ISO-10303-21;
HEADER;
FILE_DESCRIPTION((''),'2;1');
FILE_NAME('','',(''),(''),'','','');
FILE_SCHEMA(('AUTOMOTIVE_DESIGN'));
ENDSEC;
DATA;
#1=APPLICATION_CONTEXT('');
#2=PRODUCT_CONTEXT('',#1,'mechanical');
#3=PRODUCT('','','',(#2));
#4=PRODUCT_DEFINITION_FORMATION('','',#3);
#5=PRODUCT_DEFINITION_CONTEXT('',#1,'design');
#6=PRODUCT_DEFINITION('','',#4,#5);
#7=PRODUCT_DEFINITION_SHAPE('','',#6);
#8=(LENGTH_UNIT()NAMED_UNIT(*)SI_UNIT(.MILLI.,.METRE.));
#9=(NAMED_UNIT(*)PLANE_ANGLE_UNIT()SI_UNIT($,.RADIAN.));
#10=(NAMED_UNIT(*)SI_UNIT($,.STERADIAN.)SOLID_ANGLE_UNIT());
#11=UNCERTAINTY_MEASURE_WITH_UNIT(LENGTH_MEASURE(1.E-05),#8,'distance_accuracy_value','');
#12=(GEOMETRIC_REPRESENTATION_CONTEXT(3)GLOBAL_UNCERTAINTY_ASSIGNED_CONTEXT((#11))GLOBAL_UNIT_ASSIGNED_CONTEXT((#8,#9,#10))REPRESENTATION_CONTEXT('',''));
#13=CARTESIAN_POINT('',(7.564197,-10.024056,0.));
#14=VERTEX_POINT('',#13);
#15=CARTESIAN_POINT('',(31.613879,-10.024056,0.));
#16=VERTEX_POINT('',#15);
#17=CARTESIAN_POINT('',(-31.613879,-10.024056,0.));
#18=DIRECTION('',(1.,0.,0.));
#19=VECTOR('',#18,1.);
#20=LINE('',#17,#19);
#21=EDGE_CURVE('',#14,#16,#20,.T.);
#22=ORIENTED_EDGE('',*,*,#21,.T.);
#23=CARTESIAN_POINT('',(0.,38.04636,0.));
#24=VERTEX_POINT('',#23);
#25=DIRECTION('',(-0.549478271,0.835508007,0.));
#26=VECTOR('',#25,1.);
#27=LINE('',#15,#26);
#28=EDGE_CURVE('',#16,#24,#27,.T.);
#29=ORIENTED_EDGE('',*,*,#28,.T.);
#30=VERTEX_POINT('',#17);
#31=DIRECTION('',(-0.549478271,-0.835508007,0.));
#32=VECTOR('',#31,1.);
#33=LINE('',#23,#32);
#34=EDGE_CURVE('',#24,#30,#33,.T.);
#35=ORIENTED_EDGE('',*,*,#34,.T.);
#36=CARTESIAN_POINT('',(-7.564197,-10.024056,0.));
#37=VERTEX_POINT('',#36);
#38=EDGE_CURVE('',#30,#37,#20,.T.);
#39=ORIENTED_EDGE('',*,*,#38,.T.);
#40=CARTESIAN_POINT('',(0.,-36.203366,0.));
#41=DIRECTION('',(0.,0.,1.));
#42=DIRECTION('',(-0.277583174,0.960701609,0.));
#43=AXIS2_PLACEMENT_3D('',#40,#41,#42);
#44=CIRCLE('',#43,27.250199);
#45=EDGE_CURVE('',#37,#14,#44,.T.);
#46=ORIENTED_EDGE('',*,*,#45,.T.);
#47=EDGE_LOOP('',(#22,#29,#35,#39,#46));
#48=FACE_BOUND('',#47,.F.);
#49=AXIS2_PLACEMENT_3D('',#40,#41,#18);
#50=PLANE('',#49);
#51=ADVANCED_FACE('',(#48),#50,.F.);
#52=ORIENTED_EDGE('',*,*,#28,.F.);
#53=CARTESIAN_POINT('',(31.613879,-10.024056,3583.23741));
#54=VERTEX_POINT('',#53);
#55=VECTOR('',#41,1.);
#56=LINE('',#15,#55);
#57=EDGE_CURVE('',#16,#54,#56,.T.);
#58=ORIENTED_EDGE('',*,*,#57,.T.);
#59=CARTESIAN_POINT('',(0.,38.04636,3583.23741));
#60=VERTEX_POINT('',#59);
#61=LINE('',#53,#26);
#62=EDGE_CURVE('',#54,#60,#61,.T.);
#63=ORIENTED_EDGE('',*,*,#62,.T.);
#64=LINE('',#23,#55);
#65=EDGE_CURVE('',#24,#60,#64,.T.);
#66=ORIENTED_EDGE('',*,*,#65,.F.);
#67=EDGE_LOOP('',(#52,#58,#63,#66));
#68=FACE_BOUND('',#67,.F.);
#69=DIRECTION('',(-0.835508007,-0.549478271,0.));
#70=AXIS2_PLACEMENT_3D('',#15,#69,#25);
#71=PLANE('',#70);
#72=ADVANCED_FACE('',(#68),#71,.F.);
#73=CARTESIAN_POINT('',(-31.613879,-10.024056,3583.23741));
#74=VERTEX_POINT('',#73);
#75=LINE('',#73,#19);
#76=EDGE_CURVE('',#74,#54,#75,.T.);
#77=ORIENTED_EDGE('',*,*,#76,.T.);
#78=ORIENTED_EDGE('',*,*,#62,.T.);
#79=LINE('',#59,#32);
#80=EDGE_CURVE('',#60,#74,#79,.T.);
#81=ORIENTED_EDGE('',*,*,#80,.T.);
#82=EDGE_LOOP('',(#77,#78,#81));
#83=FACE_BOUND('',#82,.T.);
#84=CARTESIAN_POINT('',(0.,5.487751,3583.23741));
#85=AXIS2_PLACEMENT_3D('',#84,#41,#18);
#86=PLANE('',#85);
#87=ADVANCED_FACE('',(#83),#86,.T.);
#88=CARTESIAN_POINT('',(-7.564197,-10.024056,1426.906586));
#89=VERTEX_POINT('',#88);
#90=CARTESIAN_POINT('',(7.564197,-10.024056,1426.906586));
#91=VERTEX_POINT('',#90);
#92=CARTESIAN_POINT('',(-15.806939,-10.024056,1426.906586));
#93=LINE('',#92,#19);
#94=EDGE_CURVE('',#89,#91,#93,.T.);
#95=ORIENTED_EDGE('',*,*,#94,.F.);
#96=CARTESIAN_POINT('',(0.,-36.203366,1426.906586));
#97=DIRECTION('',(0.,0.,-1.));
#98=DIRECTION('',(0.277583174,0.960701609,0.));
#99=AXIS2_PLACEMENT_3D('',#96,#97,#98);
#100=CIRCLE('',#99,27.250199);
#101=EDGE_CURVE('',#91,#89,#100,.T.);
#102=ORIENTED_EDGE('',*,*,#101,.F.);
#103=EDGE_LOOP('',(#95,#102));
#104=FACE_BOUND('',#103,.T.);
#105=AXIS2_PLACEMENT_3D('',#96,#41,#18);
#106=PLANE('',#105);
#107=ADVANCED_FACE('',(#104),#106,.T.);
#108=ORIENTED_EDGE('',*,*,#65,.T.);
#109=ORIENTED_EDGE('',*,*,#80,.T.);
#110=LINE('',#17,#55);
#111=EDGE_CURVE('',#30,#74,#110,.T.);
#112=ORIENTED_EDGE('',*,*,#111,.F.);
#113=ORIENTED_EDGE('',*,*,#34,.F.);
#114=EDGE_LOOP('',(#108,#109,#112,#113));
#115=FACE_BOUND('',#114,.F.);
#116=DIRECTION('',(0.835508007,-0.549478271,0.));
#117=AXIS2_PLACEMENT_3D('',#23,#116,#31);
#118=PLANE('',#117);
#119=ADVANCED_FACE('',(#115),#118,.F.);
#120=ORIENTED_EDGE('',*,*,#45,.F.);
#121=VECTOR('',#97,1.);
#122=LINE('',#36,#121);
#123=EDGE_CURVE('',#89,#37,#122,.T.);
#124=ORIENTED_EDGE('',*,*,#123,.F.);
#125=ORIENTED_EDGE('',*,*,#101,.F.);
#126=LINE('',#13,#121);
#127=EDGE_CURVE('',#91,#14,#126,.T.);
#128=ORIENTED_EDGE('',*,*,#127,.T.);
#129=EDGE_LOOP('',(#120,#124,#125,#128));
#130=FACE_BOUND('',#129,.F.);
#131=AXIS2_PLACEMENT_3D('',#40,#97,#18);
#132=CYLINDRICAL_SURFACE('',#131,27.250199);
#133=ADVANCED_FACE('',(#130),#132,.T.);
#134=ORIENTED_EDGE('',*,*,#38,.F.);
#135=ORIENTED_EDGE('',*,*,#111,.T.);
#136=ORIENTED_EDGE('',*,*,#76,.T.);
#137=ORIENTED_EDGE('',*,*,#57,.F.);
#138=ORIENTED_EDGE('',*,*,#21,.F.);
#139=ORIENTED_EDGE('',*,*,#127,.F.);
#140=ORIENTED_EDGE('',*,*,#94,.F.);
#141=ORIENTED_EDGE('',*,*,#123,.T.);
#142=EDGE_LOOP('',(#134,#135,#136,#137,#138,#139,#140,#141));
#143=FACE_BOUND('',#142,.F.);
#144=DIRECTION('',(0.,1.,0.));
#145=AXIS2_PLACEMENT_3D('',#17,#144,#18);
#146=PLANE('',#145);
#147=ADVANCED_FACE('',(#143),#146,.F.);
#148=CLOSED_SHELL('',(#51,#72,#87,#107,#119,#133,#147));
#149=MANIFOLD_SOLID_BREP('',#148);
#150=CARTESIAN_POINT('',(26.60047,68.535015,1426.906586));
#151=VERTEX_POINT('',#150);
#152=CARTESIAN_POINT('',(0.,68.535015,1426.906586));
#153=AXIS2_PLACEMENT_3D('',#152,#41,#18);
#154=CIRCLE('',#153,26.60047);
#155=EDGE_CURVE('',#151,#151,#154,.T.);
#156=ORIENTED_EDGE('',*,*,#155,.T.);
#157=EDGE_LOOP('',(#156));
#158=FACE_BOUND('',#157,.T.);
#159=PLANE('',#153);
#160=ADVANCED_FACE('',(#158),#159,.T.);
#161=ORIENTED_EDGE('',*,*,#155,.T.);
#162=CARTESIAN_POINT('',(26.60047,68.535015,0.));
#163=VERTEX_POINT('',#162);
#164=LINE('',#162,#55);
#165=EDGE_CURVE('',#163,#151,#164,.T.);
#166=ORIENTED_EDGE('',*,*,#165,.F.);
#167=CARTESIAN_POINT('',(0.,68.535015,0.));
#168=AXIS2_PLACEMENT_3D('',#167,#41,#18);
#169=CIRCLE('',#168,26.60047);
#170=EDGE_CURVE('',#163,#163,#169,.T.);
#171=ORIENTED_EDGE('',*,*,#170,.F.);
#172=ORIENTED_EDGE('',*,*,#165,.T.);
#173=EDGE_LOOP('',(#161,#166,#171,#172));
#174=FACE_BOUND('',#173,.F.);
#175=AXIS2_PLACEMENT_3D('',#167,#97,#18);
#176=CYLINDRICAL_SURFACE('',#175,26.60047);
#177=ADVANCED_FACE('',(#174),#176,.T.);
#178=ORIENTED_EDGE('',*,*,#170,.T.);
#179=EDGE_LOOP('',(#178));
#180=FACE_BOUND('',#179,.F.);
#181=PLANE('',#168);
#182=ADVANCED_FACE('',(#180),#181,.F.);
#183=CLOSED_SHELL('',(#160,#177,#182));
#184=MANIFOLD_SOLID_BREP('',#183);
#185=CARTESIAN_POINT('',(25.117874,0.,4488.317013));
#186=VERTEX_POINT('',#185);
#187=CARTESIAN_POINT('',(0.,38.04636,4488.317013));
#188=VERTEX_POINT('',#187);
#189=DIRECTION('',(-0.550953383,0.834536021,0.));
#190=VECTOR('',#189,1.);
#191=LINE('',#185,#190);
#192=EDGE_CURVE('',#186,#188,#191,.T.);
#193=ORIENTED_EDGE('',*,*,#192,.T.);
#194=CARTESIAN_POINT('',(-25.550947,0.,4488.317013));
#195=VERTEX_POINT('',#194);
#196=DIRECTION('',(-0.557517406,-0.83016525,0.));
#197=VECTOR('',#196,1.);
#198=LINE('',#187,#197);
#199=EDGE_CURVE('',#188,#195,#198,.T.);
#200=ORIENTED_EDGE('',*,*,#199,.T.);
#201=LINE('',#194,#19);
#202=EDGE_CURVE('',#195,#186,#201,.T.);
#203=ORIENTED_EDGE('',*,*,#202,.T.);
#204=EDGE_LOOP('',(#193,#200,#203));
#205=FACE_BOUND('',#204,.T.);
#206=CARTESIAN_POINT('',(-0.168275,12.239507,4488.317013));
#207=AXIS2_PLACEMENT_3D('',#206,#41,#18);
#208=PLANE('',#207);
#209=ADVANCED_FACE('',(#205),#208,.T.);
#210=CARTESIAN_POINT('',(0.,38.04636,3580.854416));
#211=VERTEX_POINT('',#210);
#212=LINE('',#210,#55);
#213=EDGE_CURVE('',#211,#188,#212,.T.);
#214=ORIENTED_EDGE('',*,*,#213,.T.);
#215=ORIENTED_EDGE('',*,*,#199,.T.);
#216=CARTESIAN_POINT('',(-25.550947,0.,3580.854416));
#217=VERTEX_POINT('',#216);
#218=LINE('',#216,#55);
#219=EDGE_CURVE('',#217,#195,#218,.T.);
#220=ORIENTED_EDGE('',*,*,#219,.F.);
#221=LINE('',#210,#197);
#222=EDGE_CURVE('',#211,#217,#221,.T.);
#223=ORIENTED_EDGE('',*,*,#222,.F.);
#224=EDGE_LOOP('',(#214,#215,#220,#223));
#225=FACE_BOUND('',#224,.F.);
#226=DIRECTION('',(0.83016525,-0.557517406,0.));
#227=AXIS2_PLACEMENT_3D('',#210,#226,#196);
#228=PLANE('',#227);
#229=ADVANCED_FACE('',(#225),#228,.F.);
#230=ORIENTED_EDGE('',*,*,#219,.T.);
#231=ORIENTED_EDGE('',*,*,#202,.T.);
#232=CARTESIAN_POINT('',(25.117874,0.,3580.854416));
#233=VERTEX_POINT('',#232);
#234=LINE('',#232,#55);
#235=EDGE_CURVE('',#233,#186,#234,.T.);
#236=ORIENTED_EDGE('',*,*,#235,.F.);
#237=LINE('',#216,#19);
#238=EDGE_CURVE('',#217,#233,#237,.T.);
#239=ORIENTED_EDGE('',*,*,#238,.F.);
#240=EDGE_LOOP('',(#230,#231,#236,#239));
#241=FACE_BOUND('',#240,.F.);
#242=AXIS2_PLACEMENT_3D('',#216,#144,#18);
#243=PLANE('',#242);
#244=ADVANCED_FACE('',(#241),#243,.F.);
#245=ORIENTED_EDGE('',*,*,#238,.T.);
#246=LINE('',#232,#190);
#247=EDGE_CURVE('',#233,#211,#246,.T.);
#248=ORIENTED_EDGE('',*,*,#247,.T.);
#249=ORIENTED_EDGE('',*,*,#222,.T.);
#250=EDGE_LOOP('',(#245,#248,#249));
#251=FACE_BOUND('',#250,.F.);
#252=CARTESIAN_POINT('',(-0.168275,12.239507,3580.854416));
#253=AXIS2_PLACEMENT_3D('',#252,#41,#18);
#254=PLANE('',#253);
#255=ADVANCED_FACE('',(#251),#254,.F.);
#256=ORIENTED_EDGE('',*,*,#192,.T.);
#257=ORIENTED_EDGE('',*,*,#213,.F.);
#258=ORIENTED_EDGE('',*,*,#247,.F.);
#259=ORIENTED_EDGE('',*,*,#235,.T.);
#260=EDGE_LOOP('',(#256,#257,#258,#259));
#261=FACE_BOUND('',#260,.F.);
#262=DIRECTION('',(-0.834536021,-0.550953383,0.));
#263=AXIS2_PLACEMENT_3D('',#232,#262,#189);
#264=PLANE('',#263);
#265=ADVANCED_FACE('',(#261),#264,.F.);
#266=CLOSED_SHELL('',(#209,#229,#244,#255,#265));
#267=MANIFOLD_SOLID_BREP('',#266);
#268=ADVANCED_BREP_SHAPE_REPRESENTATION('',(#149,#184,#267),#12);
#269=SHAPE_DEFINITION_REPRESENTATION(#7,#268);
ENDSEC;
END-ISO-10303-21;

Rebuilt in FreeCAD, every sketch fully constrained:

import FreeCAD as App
import Part
import Sketcher
from FreeCAD import Vector
Q = App.Units.Quantity


def add_polygon(sketch, points):
    """Adds a closed chain of lines whose ends are joined by coincident constraints."""
    first, n = sketch.GeometryCount, len(points)
    for a, b in zip(points, points[1:] + points[:1]):
        sketch.addGeometry(Part.LineSegment(App.Vector(*a, 0), App.Vector(*b, 0)), False)
    for i in range(n):
        sketch.addConstraint(Sketcher.Constraint("Coincident", first + i, 2, first + (i + 1) % n, 1))

doc = App.newDocument("Part")
body = doc.addObject("PartDesign::Body", "Body")

# Sketch on XY plane
sketch1 = body.newObject("Sketcher::SketchObject", "Sketch")
sketch1.AttachmentSupport = (doc.getObject("XY_Plane"), [""])
sketch1.MapMode = "FlatFace"
add_polygon(sketch1, [(32, -10), (0, 38), (-32, -10)])  # lines 0-2
sketch1.addConstraint([
    Sketcher.Constraint("Horizontal", 2),
    Sketcher.Constraint("PointOnObject", 0, 2, -2),
    Sketcher.Constraint("Equal", 0, 1),
    Sketcher.Constraint("DistanceX", 2, 1, 2, 2, Q("63.227758 mm")),
    Sketcher.Constraint("DistanceY", -1, 1, 0, 2, Q("38.04636 mm")),
    Sketcher.Constraint("Distance", 0, Q("57.534357 mm")),
])
pad1 = body.newObject("PartDesign::Pad", "Pad")
pad1.Profile = sketch1
pad1.Length = 3583.23741

# Sketch on XY plane
sketch2 = body.newObject("Sketcher::SketchObject", "Sketch001")
sketch2.AttachmentSupport = (doc.getObject("XY_Plane"), [""])
sketch2.MapMode = "FlatFace"
sketch2.addGeometry(Part.Circle(Vector(0, -36, 0), Vector(0, 0, 1), 27), False)
sketch2.addConstraint([
    Sketcher.Constraint("PointOnObject", 0, 3, -2),
    Sketcher.Constraint("Diameter", 0, Q("54.500398 mm")),
    Sketcher.Constraint("DistanceY", 0, 3, -1, 1, Q("36.203366 mm")),
])
pad2 = body.newObject("PartDesign::Pad", "Pad001")
pad2.Profile = sketch2
pad2.Length = 1426.906586
body2 = doc.addObject("PartDesign::Body", "Body001")

# Sketch on XY plane
sketch3 = body2.newObject("Sketcher::SketchObject", "Sketch002")
sketch3.AttachmentSupport = (doc.getObject("XY_Plane001"), [""])
sketch3.MapMode = "FlatFace"
sketch3.AttachmentOffset = App.Placement(Vector(0, 0, 3580.854416), App.Rotation())
add_polygon(sketch3, [(25, 0), (0, 38), (-26, 0)])  # lines 0-2
sketch3.addConstraint([
    Sketcher.Constraint("Horizontal", 2),
    Sketcher.Constraint("PointOnObject", 0, 2, -2),
    Sketcher.Constraint("PointOnObject", 1, 2, -1),
    Sketcher.Constraint("DistanceX", 2, 1, 2, 2, Q("50.668821 mm")),
    Sketcher.Constraint("DistanceY", -1, 1, 0, 2, Q("38.04636 mm")),
    Sketcher.Constraint("Distance", 0, Q("45.589836 mm")),
])
pad3 = body2.newObject("PartDesign::Pad", "Pad002")
pad3.Profile = sketch3
pad3.Length = 907.462597
body3 = doc.addObject("PartDesign::Body", "Body002")

# Sketch on XY plane
sketch4 = body3.newObject("Sketcher::SketchObject", "Sketch003")
sketch4.AttachmentSupport = (doc.getObject("XY_Plane002"), [""])
sketch4.MapMode = "FlatFace"
sketch4.addGeometry(Part.Circle(Vector(0, 69, 0), Vector(0, 0, 1), 27), False)
sketch4.addConstraint([
    Sketcher.Constraint("PointOnObject", 0, 3, -2),
    Sketcher.Constraint("Diameter", 0, Q("53.200941 mm")),
    Sketcher.Constraint("DistanceY", -1, 1, 0, 3, Q("68.535015 mm")),
])
pad4 = body3.newObject("PartDesign::Pad", "Pad003")
pad4.Profile = sketch4
pad4.Length = 1426.906586

doc.recompute()
